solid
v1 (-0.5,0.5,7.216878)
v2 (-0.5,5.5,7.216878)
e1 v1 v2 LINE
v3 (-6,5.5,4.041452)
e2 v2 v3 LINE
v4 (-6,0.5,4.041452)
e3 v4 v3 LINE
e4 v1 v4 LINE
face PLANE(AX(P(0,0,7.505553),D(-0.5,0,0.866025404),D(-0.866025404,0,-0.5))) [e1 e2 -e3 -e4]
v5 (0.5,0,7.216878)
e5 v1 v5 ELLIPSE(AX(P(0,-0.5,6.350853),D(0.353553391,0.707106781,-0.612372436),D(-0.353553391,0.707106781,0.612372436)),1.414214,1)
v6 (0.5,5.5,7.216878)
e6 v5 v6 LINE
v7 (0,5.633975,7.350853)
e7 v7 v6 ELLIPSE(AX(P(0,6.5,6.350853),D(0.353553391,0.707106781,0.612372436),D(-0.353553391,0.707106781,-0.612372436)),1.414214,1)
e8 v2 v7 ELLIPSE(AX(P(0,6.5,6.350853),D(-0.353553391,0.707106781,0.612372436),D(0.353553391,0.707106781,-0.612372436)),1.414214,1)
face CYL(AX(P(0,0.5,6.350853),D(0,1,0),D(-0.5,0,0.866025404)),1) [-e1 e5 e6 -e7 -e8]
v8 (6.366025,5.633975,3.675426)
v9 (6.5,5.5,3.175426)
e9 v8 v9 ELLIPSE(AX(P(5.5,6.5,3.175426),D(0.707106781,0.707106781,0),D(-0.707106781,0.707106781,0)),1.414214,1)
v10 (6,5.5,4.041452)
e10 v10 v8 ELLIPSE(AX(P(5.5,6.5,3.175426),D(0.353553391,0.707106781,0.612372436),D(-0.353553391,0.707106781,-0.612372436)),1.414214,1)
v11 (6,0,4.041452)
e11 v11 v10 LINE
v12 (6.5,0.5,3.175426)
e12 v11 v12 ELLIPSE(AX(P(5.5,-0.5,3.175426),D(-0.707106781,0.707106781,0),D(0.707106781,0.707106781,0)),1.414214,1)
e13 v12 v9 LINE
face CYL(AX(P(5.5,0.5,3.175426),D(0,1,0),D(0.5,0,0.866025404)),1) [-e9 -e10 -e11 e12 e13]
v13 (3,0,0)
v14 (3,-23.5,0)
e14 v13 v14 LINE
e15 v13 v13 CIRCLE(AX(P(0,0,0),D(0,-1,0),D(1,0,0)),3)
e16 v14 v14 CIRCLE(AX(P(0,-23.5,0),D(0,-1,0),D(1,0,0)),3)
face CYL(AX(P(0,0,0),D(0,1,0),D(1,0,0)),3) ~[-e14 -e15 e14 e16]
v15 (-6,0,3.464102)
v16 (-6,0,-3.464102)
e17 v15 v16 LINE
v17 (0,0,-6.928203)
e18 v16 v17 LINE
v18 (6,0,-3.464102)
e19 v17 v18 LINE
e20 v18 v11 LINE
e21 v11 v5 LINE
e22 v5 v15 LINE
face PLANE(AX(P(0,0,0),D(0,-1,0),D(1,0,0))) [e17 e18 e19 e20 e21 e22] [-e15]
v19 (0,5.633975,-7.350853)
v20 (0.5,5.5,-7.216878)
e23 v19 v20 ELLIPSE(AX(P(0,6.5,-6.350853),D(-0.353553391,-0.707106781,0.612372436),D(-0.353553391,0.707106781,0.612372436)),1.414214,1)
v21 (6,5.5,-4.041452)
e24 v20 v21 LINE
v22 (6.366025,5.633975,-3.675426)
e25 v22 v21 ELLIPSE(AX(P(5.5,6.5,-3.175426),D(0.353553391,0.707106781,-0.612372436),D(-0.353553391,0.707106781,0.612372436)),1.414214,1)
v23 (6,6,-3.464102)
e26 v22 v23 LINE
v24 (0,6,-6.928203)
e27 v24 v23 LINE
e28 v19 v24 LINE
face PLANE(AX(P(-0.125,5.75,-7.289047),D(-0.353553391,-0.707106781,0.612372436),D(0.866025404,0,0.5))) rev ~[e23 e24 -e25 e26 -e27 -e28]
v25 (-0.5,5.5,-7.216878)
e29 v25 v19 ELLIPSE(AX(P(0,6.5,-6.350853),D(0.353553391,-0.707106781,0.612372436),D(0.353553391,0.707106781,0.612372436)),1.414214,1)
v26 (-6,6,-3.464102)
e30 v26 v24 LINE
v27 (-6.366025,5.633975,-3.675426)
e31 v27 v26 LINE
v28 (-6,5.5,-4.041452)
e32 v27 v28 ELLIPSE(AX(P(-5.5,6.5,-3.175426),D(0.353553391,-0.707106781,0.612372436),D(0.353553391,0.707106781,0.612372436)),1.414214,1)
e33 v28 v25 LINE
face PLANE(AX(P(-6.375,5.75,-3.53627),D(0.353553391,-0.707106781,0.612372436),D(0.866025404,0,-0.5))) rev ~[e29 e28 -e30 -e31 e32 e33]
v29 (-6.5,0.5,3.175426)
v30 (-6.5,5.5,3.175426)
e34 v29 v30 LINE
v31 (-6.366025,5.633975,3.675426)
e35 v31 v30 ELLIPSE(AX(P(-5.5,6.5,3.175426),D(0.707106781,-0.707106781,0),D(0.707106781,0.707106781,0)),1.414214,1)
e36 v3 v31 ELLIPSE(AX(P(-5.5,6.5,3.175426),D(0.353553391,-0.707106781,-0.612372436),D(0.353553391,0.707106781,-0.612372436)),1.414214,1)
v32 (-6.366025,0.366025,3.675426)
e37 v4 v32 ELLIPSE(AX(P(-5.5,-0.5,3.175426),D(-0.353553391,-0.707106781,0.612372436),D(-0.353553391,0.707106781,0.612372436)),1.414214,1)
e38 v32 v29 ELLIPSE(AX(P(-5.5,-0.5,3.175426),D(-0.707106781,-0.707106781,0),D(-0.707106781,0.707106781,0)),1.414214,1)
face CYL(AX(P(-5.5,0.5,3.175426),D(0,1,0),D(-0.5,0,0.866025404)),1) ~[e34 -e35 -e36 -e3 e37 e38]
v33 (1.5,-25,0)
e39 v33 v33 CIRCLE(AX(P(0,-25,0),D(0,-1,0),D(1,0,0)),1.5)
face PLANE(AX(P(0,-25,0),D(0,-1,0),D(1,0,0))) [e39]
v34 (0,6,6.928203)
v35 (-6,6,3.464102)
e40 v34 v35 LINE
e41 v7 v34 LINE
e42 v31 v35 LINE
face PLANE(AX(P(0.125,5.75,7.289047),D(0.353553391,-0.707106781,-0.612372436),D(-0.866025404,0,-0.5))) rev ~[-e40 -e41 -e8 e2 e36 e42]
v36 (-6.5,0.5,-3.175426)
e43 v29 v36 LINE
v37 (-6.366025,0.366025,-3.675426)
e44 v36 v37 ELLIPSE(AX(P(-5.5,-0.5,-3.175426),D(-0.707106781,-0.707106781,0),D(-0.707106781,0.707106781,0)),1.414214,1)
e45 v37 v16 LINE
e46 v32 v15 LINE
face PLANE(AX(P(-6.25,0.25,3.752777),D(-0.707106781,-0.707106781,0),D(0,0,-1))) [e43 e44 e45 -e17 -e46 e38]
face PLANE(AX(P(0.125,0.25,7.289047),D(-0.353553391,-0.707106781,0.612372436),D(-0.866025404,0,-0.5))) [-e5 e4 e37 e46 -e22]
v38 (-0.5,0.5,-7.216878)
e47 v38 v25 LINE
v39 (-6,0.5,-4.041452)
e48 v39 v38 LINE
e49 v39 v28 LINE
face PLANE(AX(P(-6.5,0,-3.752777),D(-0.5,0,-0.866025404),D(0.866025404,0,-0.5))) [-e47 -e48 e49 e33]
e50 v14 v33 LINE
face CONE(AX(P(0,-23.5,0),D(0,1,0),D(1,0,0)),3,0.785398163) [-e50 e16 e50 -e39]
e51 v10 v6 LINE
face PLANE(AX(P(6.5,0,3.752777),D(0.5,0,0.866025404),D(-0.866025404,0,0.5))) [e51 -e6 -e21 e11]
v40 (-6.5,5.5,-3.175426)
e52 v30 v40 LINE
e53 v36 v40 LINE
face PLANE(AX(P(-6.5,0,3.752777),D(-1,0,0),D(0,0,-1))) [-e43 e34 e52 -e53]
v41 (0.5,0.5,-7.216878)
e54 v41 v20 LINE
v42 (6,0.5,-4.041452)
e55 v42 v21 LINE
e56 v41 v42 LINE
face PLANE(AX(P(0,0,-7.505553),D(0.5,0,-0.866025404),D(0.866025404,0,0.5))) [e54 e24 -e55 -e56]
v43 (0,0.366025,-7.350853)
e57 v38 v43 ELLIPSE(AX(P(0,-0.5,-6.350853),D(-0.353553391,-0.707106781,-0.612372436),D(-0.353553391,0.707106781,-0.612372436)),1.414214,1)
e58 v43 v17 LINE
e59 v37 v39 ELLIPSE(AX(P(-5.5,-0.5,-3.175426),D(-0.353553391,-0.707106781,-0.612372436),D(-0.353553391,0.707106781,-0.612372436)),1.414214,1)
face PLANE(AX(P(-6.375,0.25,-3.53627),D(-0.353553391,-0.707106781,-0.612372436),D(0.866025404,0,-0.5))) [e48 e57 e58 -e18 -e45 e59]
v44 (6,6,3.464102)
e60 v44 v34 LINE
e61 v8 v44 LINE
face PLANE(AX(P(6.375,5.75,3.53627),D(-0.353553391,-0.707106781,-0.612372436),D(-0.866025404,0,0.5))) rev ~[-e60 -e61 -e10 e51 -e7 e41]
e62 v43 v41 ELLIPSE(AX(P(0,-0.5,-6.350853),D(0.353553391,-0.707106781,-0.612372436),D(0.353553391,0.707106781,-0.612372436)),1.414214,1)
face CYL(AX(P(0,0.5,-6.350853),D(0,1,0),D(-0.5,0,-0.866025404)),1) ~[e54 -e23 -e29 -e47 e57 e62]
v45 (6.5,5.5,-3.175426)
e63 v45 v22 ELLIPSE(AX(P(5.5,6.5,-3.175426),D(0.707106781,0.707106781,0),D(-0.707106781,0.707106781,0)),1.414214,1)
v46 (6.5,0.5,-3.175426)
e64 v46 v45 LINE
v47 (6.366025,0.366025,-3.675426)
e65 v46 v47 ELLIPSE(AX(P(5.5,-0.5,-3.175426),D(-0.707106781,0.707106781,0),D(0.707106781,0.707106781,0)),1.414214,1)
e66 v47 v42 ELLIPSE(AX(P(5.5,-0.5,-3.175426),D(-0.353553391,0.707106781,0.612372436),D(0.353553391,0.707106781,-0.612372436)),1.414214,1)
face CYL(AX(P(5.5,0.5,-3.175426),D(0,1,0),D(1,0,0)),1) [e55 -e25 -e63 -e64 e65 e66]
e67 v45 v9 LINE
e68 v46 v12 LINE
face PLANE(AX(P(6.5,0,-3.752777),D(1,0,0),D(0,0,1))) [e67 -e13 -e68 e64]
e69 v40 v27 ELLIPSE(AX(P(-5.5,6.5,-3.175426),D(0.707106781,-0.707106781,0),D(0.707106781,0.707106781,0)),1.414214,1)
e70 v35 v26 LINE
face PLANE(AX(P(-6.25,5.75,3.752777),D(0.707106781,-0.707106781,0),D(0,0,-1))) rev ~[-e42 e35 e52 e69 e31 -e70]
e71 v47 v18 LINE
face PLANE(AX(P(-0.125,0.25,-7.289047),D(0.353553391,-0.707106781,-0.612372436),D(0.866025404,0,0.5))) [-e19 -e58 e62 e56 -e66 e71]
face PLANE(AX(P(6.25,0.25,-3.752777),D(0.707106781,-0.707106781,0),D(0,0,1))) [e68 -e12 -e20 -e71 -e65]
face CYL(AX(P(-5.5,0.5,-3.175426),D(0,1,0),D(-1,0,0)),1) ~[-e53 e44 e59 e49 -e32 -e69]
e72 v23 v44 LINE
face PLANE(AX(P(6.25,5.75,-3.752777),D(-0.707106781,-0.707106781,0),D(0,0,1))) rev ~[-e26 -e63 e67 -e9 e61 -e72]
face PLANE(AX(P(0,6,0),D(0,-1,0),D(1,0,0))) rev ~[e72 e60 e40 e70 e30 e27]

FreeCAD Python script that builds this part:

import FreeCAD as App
import Part
import Sketcher
from FreeCAD import Vector
Q = App.Units.Quantity


def edges_at(feature, points):
    """Names of the edges that pass closest to the given points."""
    edges = feature.Shape.Edges
    near = lambda p: min(range(len(edges)), key=lambda i: edges[i].distToShape(Part.Vertex(*p))[0])
    return sorted({f"Edge{near(p) + 1}" for p in points})

doc = App.newDocument("Part")
params = doc.addObject("Spreadsheet::Sheet", "Params")
for row, (alias, value) in enumerate([
    ("pad1_length", "6 mm"),
    ("chamfer_size", "0.5 mm"),
    ("fillet_radius", "1 mm"),
    ("sketch2_diameter", "6 mm"),
    ("pad2_length", "25 mm"),
    ("chamfer2_size", "1.5 mm"),
], start=1):
    params.set(f"A{row}", alias)
    params.set(f"B{row}", "=" + value)
    params.setAlias(f"B{row}", alias)

body = doc.addObject("PartDesign::Body", "Body")

# Sketch on XZ plane
sketch1 = doc.addObject("Sketcher::SketchObject", "Sketch")
body.addObject(sketch1)
sketch1.AttachmentSupport = (doc.XZ_Plane, [""])
sketch1.MapMode = "FlatFace"
sketch1.addGeometry([
    Part.LineSegment(Vector(0, 8, 0), Vector(-6, 4, 0)),  # 0
    Part.LineSegment(Vector(-6, 4, 0), Vector(-6, -4, 0)),  # 1
    Part.LineSegment(Vector(-6, -4, 0), Vector(0, -8, 0)),  # 2
    Part.LineSegment(Vector(0, -8, 0), Vector(6, -4, 0)),  # 3
    Part.LineSegment(Vector(6, -4, 0), Vector(6, 4, 0)),  # 4
    Part.LineSegment(Vector(6, 4, 0), Vector(0, 8, 0)),  # 5
], False)
sketch1.addConstraint([
    Sketcher.Constraint("Coincident", 0, 2, 1, 1),
    Sketcher.Constraint("Coincident", 1, 2, 2, 1),
    Sketcher.Constraint("Coincident", 2, 2, 3, 1),
    Sketcher.Constraint("Coincident", 3, 2, 4, 1),
    Sketcher.Constraint("Coincident", 4, 2, 5, 1),
    Sketcher.Constraint("Coincident", 5, 2, 0, 1),
    Sketcher.Constraint("Vertical", 1),
    Sketcher.Constraint("Vertical", 4),
    Sketcher.Constraint("Symmetric", 0, 2, 3, 2, -1, 1),
    Sketcher.Constraint("Symmetric", 2, 2, 5, 2, -1, 1),
    Sketcher.Constraint("PointOnObject", 2, 2, -2),
    Sketcher.Constraint("Parallel", 2, 5),
    Sketcher.Constraint("Horizontal", 1, 2, 3, 2),
    Sketcher.Constraint("Angle", 0, Q("-150 deg")),
    Sketcher.Constraint("DistanceX", 1, 2, 3, 2, 13.0),
    Sketcher.Constraint("DistanceY", 1, 2, 1, 1, 7.505554),
])
pad1 = doc.addObject("PartDesign::Pad", "Pad")
body.addObject(pad1)
pad1.Profile = sketch1
pad1.setExpression("Length", "Params.pad1_length")
pad1.Reversed = True
doc.recompute()

chamfer = doc.addObject("PartDesign::Chamfer", "Chamfer")
body.addObject(chamfer)
chamfer.Base = (pad1, edges_at(pad1, [
    (6.5, 0, 0),
    (-3.25, 0, 5.629),
    (-6.5, 0, 0),
    (-3.25, 0, -5.629),
    (3.25, 0, -5.629),
    (-3.25, 6, 5.629),
    (-6.5, 6, 0),
    (-3.25, 6, -5.629),
    (3.25, 6, -5.629),
    (6.5, 6, 0),
    (3.25, 6, 5.629),
]))
chamfer.setExpression("Size", "Params.chamfer_size")
doc.recompute()

fillet = doc.addObject("PartDesign::Fillet", "Fillet")
body.addObject(fillet)
fillet.Base = (chamfer, edges_at(chamfer, [
    (0, 3, 7.506),
    (-6.5, 3, 3.753),
    (6.5, 3, 3.753),
    (-6.5, 3, -3.753),
    (0, 3, -7.506),
    (6.5, 3, -3.753),
]))
fillet.setExpression("Radius", "Params.fillet_radius")

# Sketch on XZ plane
sketch2 = doc.addObject("Sketcher::SketchObject", "Sketch001")
body.addObject(sketch2)
sketch2.AttachmentSupport = (doc.XZ_Plane, [""])
sketch2.MapMode = "FlatFace"
sketch2.addGeometry(Part.Circle(Vector(0, 0, 0), Vector(0, 0, 1), 3), False)
sketch2.addConstraint([
    Sketcher.Constraint("Coincident", 0, 3, -1, 1),
    Sketcher.Constraint("Diameter", 0, 6.0),
])
sketch2.setExpression("Constraints[1]", "Params.sketch2_diameter")
pad2 = doc.addObject("PartDesign::Pad", "Pad001")
body.addObject(pad2)
pad2.Profile = sketch2
pad2.setExpression("Length", "Params.pad2_length")
doc.recompute()

chamfer2 = doc.addObject("PartDesign::Chamfer", "Chamfer001")
body.addObject(chamfer2)
chamfer2.Base = (pad2, edges_at(pad2, [(-3, -25, 0)]))
chamfer2.setExpression("Size", "Params.chamfer2_size")

doc.recompute()
